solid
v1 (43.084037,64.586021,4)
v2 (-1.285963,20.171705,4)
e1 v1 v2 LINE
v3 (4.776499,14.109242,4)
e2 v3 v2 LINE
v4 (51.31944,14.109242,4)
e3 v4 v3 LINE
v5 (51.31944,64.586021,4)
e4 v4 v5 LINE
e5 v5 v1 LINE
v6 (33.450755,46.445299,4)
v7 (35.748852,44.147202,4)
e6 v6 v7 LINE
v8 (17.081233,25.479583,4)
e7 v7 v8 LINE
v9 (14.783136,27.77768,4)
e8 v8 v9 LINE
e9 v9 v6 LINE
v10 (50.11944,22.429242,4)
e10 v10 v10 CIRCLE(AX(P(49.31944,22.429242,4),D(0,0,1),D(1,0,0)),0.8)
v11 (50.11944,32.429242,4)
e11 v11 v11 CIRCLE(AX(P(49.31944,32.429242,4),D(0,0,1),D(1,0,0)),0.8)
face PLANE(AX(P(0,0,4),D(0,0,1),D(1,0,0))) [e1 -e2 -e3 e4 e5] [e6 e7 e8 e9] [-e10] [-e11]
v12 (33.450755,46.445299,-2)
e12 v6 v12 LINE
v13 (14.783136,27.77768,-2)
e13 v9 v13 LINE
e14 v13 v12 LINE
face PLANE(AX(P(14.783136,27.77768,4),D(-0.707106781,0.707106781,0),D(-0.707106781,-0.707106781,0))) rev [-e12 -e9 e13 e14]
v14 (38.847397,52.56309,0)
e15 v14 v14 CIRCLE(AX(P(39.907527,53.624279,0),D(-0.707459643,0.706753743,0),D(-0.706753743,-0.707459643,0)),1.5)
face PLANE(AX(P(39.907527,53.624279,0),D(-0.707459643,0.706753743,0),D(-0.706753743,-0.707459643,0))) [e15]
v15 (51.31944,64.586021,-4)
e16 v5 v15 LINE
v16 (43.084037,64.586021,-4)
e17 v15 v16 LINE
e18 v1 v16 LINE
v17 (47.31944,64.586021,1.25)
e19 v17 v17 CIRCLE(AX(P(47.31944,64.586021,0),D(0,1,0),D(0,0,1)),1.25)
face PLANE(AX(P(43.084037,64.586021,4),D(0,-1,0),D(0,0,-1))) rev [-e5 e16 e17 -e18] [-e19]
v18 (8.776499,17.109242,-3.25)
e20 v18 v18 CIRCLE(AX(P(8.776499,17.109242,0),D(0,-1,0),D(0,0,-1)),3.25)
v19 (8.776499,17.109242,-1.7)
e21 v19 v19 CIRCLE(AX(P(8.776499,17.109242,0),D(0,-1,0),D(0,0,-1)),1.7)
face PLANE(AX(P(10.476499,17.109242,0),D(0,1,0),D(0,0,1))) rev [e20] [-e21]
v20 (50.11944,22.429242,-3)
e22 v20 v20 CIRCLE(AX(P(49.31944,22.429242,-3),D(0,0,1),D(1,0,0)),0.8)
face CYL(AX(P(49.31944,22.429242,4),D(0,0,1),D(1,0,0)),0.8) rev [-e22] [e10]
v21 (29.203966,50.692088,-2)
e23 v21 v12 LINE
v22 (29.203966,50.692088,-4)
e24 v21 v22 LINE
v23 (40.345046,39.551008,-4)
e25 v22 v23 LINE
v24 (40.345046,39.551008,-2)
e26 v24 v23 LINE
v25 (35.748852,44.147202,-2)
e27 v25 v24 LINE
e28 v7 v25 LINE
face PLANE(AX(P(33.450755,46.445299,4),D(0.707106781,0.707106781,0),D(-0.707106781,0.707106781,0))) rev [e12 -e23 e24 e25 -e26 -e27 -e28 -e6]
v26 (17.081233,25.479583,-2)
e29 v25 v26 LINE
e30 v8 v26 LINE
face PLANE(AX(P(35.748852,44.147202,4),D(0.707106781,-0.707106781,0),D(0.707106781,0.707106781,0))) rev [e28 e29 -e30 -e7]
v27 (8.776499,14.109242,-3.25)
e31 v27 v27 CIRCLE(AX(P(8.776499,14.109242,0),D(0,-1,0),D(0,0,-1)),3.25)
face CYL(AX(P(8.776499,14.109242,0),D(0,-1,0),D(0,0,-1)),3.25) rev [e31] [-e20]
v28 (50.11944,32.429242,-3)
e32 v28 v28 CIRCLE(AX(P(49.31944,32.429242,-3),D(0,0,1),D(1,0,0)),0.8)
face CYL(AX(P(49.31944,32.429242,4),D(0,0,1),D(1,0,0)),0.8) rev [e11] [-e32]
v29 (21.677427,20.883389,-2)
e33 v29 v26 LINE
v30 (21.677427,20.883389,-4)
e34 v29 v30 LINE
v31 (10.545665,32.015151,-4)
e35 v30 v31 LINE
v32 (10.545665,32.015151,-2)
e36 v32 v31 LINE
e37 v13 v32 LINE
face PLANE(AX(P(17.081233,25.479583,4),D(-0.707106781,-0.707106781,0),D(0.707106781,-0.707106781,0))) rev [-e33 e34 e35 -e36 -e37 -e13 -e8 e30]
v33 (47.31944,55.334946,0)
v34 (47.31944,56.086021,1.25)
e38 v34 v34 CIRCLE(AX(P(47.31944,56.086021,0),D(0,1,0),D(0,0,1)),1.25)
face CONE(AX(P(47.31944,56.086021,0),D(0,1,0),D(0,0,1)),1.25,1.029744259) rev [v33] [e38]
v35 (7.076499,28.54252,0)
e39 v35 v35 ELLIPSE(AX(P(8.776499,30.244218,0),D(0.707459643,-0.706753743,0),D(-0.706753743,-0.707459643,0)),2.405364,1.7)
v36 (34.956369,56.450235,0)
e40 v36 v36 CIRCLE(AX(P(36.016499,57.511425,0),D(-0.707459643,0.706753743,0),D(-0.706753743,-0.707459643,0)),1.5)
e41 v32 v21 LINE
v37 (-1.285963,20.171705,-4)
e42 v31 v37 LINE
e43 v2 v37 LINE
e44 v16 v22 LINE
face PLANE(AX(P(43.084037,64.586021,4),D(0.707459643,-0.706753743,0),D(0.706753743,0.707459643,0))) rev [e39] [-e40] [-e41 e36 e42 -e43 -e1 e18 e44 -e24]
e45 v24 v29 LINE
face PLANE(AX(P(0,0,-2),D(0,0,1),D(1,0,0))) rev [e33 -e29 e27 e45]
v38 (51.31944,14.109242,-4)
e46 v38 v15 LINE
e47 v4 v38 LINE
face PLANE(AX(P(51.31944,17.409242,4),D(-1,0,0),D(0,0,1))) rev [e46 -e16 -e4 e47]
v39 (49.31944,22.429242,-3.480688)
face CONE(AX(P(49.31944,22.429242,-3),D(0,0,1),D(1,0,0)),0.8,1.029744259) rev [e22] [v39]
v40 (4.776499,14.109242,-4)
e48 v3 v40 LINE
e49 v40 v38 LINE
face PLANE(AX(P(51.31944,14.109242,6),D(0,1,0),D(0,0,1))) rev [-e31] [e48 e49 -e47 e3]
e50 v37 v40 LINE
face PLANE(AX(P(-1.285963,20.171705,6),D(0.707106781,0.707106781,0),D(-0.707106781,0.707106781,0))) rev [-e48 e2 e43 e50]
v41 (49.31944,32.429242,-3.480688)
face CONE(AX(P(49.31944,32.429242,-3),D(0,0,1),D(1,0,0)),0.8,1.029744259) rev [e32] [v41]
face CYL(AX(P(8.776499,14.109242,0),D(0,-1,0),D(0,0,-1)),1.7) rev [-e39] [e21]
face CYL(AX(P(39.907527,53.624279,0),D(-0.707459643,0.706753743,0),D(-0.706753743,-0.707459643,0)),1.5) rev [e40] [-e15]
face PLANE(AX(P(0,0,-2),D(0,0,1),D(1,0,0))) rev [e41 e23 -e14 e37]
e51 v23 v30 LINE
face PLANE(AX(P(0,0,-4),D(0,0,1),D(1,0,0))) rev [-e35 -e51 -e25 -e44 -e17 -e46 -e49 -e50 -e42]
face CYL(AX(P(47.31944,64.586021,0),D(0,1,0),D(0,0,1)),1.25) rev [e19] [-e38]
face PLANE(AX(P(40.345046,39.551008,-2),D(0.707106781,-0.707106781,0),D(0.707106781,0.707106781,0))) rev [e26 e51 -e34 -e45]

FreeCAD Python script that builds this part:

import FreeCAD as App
import Part
import Sketcher
from FreeCAD import Vector
Q = App.Units.Quantity


def add_polygon(sketch, points):
    """Adds a closed chain of lines whose ends are joined by coincident constraints."""
    first, n = sketch.GeometryCount, len(points)
    for a, b in zip(points, points[1:] + points[:1]):
        sketch.addGeometry(Part.LineSegment(App.Vector(*a, 0), App.Vector(*b, 0)), False)
    for i in range(n):
        sketch.addConstraint(Sketcher.Constraint("Coincident", first + i, 2, first + (i + 1) % n, 1))

doc = App.newDocument("Part")
body = doc.addObject("PartDesign::Body", "Body")

# Sketch on XY plane
sketch1 = body.newObject("Sketcher::SketchObject", "Sketch")
sketch1.AttachmentSupport = (doc.getObject("XY_Plane"), [""])
sketch1.MapMode = "FlatFace"
add_polygon(sketch1, [(-8, 17), (51, 17), (51, 72), (36, 72), (43, 65), (-1, 20), (-8, 27)])  # lines 0-6
sketch1.addConstraint([
    Sketcher.Constraint("Horizontal", 0),
    Sketcher.Constraint("Vertical", 1),
    Sketcher.Constraint("Horizontal", 2),
    Sketcher.Constraint("Vertical", 6),
    Sketcher.Constraint("Perpendicular", 3, 4),
    Sketcher.Constraint("Perpendicular", 4, 5),
    Sketcher.Constraint("Equal", 3, 5),
    Sketcher.Constraint("Distance", 3, 10.0),
    Sketcher.Constraint("DistanceX", 0, 1, 0, 2, 59.68),
    Sketcher.Constraint("DistanceX", 2, 2, 2, 1, 15.31),
    Sketcher.Constraint("DistanceY", 6, 2, 6, 1, 9.83),
    Sketcher.Constraint("Distance", 4, 62.78),
    Sketcher.Constraint("DistanceX", -1, 1, 0, 2, 51.31944),
    Sketcher.Constraint("DistanceY", -1, 1, 1, 2, 71.653559),
])
pad1 = body.newObject("PartDesign::Pad", "Pad")
pad1.Profile = sketch1
pad1.Length = 8
pad1.Midplane = True

# Sketch on XZ plane
sketch2 = body.newObject("Sketcher::SketchObject", "Sketch001")
sketch2.AttachmentSupport = (doc.getObject("XZ_Plane"), [""])
sketch2.MapMode = "FlatFace"
sketch2.AttachmentOffset = App.Placement(Vector(0, 0, -17.409242), App.Rotation())
add_polygon(sketch2, [(-8, 4), (-8, -4), (51, -4), (51, 4)])  # lines 0-3
sketch2.addConstraint([
    Sketcher.Constraint("Vertical", 0),
    Sketcher.Constraint("Horizontal", 1),
    Sketcher.Constraint("Vertical", 2),
    Sketcher.Constraint("Horizontal", 3),
    Sketcher.Constraint("DistanceY", 0, 2, 0, 1, 8.0),
    Sketcher.Constraint("DistanceY", 0, 2, -1, 1, 4.0),
    Sketcher.Constraint("DistanceX", 1, 1, 1, 2, 59.68),
    Sketcher.Constraint("DistanceX", 0, 2, -1, 1, 8.36056),
])
pad2 = body.newObject("PartDesign::Pad", "Pad001")
pad2.Profile = sketch2
pad2.Length = 5.46

# Sketch on XY plane
sketch3 = body.newObject("Sketcher::SketchObject", "Sketch002")
sketch3.AttachmentSupport = (doc.getObject("XY_Plane"), [""])
sketch3.MapMode = "FlatFace"
sketch3.AttachmentOffset = App.Placement(Vector(0, 0, -4), App.Rotation())
add_polygon(sketch3, [(33.5, 46.4), (35.7, 44.1), (17.1, 25.5), (14.8, 27.8)])  # lines 0-3
sketch3.addConstraint([
    Sketcher.Constraint("Perpendicular", 0, 1),
    Sketcher.Constraint("Perpendicular", 1, 2),
    Sketcher.Constraint("Perpendicular", 2, 3),
    Sketcher.Constraint("Angle", 0, Q("-45 deg")),
    Sketcher.Constraint("Distance", 1, 26.4),
    Sketcher.Constraint("Distance", 0, 3.25),
    Sketcher.Constraint("DistanceY", -1, 1, 3, 2, 46.445299),
    Sketcher.Constraint("DistanceX", -1, 1, 0, 2, 35.748852),
])
pocket1 = body.newObject("PartDesign::Pocket", "Pocket")
pocket1.Profile = sketch3
pocket1.Type = "ThroughAll"
pocket1.Reversed = True

# Sketch on XY plane
sketch4 = body.newObject("Sketcher::SketchObject", "Sketch003")
sketch4.AttachmentSupport = (doc.getObject("XY_Plane"), [""])
sketch4.MapMode = "FlatFace"
sketch4.AttachmentOffset = App.Placement(Vector(0, 0, -4), App.Rotation())
add_polygon(sketch4, [(51.3, 14.1), (51.3, 11.9), (-8.4, 11.9), (-8.4, 14.1)])  # lines 0-3
sketch4.addConstraint([
    Sketcher.Constraint("Vertical", 0),
    Sketcher.Constraint("Horizontal", 1),
    Sketcher.Constraint("Vertical", 2),
    Sketcher.Constraint("Horizontal", 3),
    Sketcher.Constraint("DistanceX", 1, 2, 1, 1, 59.68),
    Sketcher.Constraint("DistanceY", 0, 2, 0, 1, 2.16),
    Sketcher.Constraint("DistanceX", -1, 1, 0, 2, 51.31944),
    Sketcher.Constraint("DistanceY", -1, 1, 0, 2, 11.949242),
])
pocket2 = body.newObject("PartDesign::Pocket", "Pocket001")
pocket2.Profile = sketch4
pocket2.Length = 10
pocket2.Reversed = True

# Sketch on XY plane
sketch5 = body.newObject("Sketcher::SketchObject", "Sketch004")
sketch5.AttachmentSupport = (doc.getObject("XY_Plane"), [""])
sketch5.MapMode = "FlatFace"
sketch5.AttachmentOffset = App.Placement(Vector(0, 0, -4), App.Rotation())
add_polygon(sketch5, [(-1, 20), (5, 14), (-8, 14), (-8, 29), (-1, 29)])  # lines 0-4
sketch5.addConstraint([
    Sketcher.Constraint("Horizontal", 1),
    Sketcher.Constraint("Vertical", 2),
    Sketcher.Constraint("Horizontal", 3),
    Sketcher.Constraint("Vertical", 4),
    Sketcher.Constraint("Angle", 0, Q("-45 deg")),
    Sketcher.Constraint("DistanceX", 1, 2, 1, 1, 13.44285),
    Sketcher.Constraint("Distance", 0, 9.006071),
    Sketcher.Constraint("DistanceY", 2, 1, 2, 2, 15.239936),
    Sketcher.Constraint("DistanceX", -1, 1, 0, 2, 5.082291),
    Sketcher.Constraint("DistanceY", -1, 1, 0, 2, 13.803451),
])
pocket3 = body.newObject("PartDesign::Pocket", "Pocket002")
pocket3.Profile = sketch5
pocket3.Length = 10
pocket3.Reversed = True

# Sketch on XY plane
sketch6 = body.newObject("Sketcher::SketchObject", "Sketch005")
sketch6.AttachmentSupport = (doc.getObject("XY_Plane"), [""])
sketch6.MapMode = "FlatFace"
sketch6.AttachmentOffset = App.Placement(Vector(0, 0, 4), App.Rotation())
sketch6.addGeometry([
    Part.Circle(Vector(49.3, 32.4, 0), Vector(0, 0, 1), 0.8),
    Part.Circle(Vector(49.3, 22.4, 0), Vector(0, 0, 1), 0.8),
], False)
sketch6.addConstraint([
    Sketcher.Constraint("Equal", 0, 1),
    Sketcher.Constraint("Vertical", 0, 3, 1, 3),
    Sketcher.Constraint("Diameter", 0, 1.6),
    Sketcher.Constraint("DistanceY", 1, 3, 0, 3, 10.0),
    Sketcher.Constraint("DistanceX", -1, 1, 0, 3, 49.31944),
    Sketcher.Constraint("DistanceY", -1, 1, 0, 3, 32.429242),
])
doc.recompute()
hole = body.newObject("PartDesign::Hole", "Hole")
hole.Profile = sketch6
hole.ThreadType = "None"
hole.Diameter = 1.6
hole.DepthType = "Dimension"
hole.Depth = 7
hole.DrillPoint = "Angled"
hole.DrillPointAngle = 118

# Sketch on XZ plane
sketch7 = body.newObject("Sketcher::SketchObject", "Sketch006")
sketch7.AttachmentSupport = (doc.getObject("XZ_Plane"), [""])
sketch7.MapMode = "FlatFace"
sketch7.AttachmentOffset = App.Placement(Vector(0, 0, -14.109242), App.Rotation())
sketch7.addGeometry(Part.Circle(Vector(8.8, 0, 0), Vector(0, 0, 1), 1.7), False)
sketch7.addConstraint([
    Sketcher.Constraint("PointOnObject", 0, 3, -1),
    Sketcher.Constraint("Diameter", 0, 3.4),
    Sketcher.Constraint("DistanceX", -1, 1, 0, 3, 8.776499),
])
doc.recompute()
hole2 = body.newObject("PartDesign::Hole", "Hole001")
hole2.Profile = sketch7
hole2.ThreadType = "None"
hole2.Diameter = 3.4
hole2.DepthType = "ThroughAll"
hole2.HoleCutType = "Counterbore"
hole2.HoleCutDiameter = 6.5
hole2.HoleCutDepth = 3

# Sketch on XY plane
sketch8 = body.newObject("Sketcher::SketchObject", "Sketch007")
sketch8.AttachmentSupport = (doc.getObject("XY_Plane"), [""])
sketch8.MapMode = "FlatFace"
sketch8.AttachmentOffset = App.Placement(Vector(0, 0, -4), App.Rotation())
add_polygon(sketch8, [(51, 65), (43, 65), (36, 72), (51, 72)])  # lines 0-3
sketch8.addConstraint([
    Sketcher.Constraint("Horizontal", 0),
    Sketcher.Constraint("Horizontal", 2),
    Sketcher.Constraint("Vertical", 3),
    Sketcher.Constraint("Distance", 1, 10.0),
    Sketcher.Constraint("DistanceX", 2, 1, 2, 2, 15.31),
    Sketcher.Constraint("DistanceX", 0, 2, 0, 1, 8.235404),
    Sketcher.Constraint("DistanceY", -1, 1, 0, 2, 64.586021),
    Sketcher.Constraint("DistanceX", -1, 1, 1, 2, 36.00944),
])
pocket4 = body.newObject("PartDesign::Pocket", "Pocket003")
pocket4.Profile = sketch8
pocket4.Type = "ThroughAll"
pocket4.Reversed = True

# Sketch on an angled plane
sketch9 = body.newObject("Sketcher::SketchObject", "Sketch008")
sketch9.Placement = App.Placement(Vector(-10.729471, 10.718765, 0), App.Rotation(Vector(0, 0, 1), Vector(0.706753743, 0.707459643, 0), Vector(-0.707459643, 0.706753743, 0), "ZXY"))
sketch9.addGeometry(Part.Circle(Vector(0, 66.1, 0), Vector(0, 0, 1), 1.5), False)
sketch9.addConstraint([
    Sketcher.Constraint("PointOnObject", 0, 3, -2),
    Sketcher.Constraint("Diameter", 0, 3.0),
    Sketcher.Constraint("DistanceY", -1, 1, 0, 3, 66.141808),
])
pocket5 = body.newObject("PartDesign::Pocket", "Pocket004")
pocket5.Profile = sketch9
pocket5.Length = 5.5

# Sketch on XZ plane
sketch10 = body.newObject("Sketcher::SketchObject", "Sketch009")
sketch10.AttachmentSupport = (doc.getObject("XZ_Plane"), [""])
sketch10.MapMode = "FlatFace"
sketch10.AttachmentOffset = App.Placement(Vector(0, 0, -64.586021), App.Rotation())
sketch10.addGeometry(Part.Circle(Vector(47.3, 0, 0), Vector(0, 0, 1), 1.2), False)
sketch10.addConstraint([
    Sketcher.Constraint("PointOnObject", 0, 3, -1),
    Sketcher.Constraint("Diameter", 0, 2.5),
    Sketcher.Constraint("DistanceX", -1, 1, 0, 3, 47.31944),
])
doc.recompute()
hole3 = body.newObject("PartDesign::Hole", "Hole002")
hole3.Profile = sketch10
hole3.ThreadType = "None"
hole3.Diameter = 2.5
hole3.DepthType = "Dimension"
hole3.Depth = 8.5
hole3.DrillPoint = "Angled"
hole3.DrillPointAngle = 118
hole3.Reversed = True

# Sketch on XY plane
sketch11 = body.newObject("Sketcher::SketchObject", "Sketch010")
sketch11.AttachmentSupport = (doc.getObject("XY_Plane"), [""])
sketch11.MapMode = "FlatFace"
sketch11.AttachmentOffset = App.Placement(Vector(0, 0, -4), App.Rotation())
add_polygon(sketch11, [(33.5, 46.4), (35.7, 44.1), (40.3, 39.6), (21.7, 20.9), (10.5, 32), (29.2, 50.7)])  # lines 0-5
sketch11.addConstraint([
    Sketcher.Constraint("Parallel", 0, 1),
    Sketcher.Constraint("Perpendicular", 1, 2),
    Sketcher.Constraint("Perpendicular", 2, 3),
    Sketcher.Constraint("Parallel", 3, 5),
    Sketcher.Constraint("Angle", 0, Q("-45 deg")),
    Sketcher.Constraint("Distance", 1, 6.5),
    Sketcher.Constraint("Distance", 2, 26.4),
    Sketcher.Constraint("Distance", 0, 3.25),
    Sketcher.Constraint("DistanceY", -1, 1, 5, 2, 46.445299),
    Sketcher.Constraint("DistanceX", 3, 2, 4, 2, 18.658301),
    Sketcher.Constraint("DistanceY", 2, 2, 4, 2, 29.808698),
    Sketcher.Constraint("DistanceX", -1, 1, 0, 2, 35.748852),
])
pocket6 = body.newObject("PartDesign::Pocket", "Pocket005")
pocket6.Profile = sketch11
pocket6.Length = 2
pocket6.Reversed = True

doc.recompute()
